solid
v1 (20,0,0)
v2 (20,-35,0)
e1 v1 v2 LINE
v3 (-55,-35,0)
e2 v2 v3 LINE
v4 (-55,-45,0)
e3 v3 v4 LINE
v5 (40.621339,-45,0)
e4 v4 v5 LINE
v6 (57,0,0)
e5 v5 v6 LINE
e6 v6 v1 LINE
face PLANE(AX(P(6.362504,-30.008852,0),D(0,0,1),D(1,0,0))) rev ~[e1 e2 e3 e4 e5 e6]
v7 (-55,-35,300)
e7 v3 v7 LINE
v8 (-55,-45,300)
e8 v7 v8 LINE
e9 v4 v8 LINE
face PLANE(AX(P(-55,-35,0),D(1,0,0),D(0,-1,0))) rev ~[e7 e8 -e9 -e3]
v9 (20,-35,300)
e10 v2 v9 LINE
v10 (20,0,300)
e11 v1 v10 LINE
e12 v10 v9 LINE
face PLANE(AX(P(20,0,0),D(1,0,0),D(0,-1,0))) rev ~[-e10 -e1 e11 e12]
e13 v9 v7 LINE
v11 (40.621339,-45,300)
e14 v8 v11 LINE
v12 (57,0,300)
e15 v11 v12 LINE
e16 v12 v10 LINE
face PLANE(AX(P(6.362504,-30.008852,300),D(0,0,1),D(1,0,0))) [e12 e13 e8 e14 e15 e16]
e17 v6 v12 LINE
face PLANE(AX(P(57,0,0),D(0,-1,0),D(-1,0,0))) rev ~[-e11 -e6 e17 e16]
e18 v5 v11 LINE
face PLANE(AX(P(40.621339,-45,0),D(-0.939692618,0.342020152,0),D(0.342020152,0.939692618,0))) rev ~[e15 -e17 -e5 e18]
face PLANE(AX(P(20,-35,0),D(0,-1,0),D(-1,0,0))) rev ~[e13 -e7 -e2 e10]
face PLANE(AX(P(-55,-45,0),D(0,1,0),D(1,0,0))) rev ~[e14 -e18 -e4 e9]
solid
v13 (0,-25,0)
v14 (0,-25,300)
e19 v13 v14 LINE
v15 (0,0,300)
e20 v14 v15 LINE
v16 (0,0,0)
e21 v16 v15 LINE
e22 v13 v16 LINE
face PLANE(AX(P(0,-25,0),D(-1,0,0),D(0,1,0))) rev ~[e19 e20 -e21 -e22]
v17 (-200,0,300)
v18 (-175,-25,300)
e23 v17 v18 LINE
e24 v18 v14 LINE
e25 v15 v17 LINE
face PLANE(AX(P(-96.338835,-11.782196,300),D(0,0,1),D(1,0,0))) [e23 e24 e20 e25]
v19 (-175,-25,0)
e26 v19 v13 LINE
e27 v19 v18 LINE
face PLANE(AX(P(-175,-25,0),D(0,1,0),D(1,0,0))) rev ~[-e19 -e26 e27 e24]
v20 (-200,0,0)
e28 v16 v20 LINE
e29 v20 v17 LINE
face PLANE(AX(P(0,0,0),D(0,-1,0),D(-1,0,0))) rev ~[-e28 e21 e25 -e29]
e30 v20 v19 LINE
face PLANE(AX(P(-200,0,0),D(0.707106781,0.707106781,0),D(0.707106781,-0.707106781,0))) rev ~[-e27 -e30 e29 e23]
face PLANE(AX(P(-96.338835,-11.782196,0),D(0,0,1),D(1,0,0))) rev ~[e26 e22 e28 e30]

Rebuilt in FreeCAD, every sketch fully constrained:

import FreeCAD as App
import Part
import Sketcher
Q = App.Units.Quantity

doc = App.newDocument("Part")
body = doc.addObject("PartDesign::Body", "Body")

sketch1 = body.newObject("Sketcher::SketchObject", "Sketch")
sketch1.AttachmentSupport = (doc.getObject("XY_Plane"), [""])
sketch1.MapMode = "FlatFace"
sketch1.addGeometry([
    Part.LineSegment(App.Vector(0, 0, 0), App.Vector(-200, 0, 0)),
    Part.LineSegment(App.Vector(-200, 0, 0), App.Vector(-175, -25, 0)),
    Part.LineSegment(App.Vector(-175, -25, 0), App.Vector(0, -25, 0)),
    Part.LineSegment(App.Vector(0, -25, 0), App.Vector(0, 0, 0)),
], False)
sketch1.addConstraint([
    Sketcher.Constraint("Coincident", 0, 2, 1, 1),
    Sketcher.Constraint("Coincident", 1, 2, 2, 1),
    Sketcher.Constraint("Coincident", 2, 2, 3, 1),
    Sketcher.Constraint("Coincident", 3, 2, 0, 1),
    Sketcher.Constraint("Horizontal", 0),
    Sketcher.Constraint("Horizontal", 2),
    Sketcher.Constraint("Vertical", 3),
    Sketcher.Constraint("Coincident", 3, 2, -1, 1),
    Sketcher.Constraint("DistanceX", 0, 2, 0, 1, 200.0),
    Sketcher.Constraint("DistanceX", 2, 1, 2, 2, 175.0),
    Sketcher.Constraint("DistanceY", 3, 1, 3, 2, 25.0),
])
pad1 = body.newObject("PartDesign::Pad", "Pad")
pad1.Profile = sketch1
pad1.Length = 300
body2 = doc.addObject("PartDesign::Body", "Body001")

sketch2 = body2.newObject("Sketcher::SketchObject", "Sketch001")
sketch2.AttachmentSupport = (doc.getObject("XY_Plane001"), [""])
sketch2.MapMode = "FlatFace"
sketch2.addGeometry([
    Part.LineSegment(App.Vector(57, 0, 0), App.Vector(20, 0, 0)),
    Part.LineSegment(App.Vector(20, 0, 0), App.Vector(20, -35, 0)),
    Part.LineSegment(App.Vector(20, -35, 0), App.Vector(-55, -35, 0)),
    Part.LineSegment(App.Vector(-55, -35, 0), App.Vector(-55, -45, 0)),
    Part.LineSegment(App.Vector(-55, -45, 0), App.Vector(41, -45, 0)),
    Part.LineSegment(App.Vector(41, -45, 0), App.Vector(57, 0, 0)),
], False)
sketch2.addConstraint([
    Sketcher.Constraint("Coincident", 0, 2, 1, 1),
    Sketcher.Constraint("Coincident", 1, 2, 2, 1),
    Sketcher.Constraint("Coincident", 2, 2, 3, 1),
    Sketcher.Constraint("Coincident", 3, 2, 4, 1),
    Sketcher.Constraint("Coincident", 4, 2, 5, 1),
    Sketcher.Constraint("Coincident", 5, 2, 0, 1),
    Sketcher.Constraint("Horizontal", 0),
    Sketcher.Constraint("Vertical", 1),
    Sketcher.Constraint("Horizontal", 2),
    Sketcher.Constraint("Vertical", 3),
    Sketcher.Constraint("Horizontal", 4),
    Sketcher.Constraint("PointOnObject", 0, 2, -1),
    Sketcher.Constraint("DistanceX", 0, 2, 0, 1, 37.0),
    Sketcher.Constraint("DistanceX", 2, 2, 2, 1, 75.0),
    Sketcher.Constraint("DistanceY", 1, 2, 1, 1, 35.0),
    Sketcher.Constraint("DistanceY", 3, 2, 3, 1, 10.0),
    Sketcher.Constraint("Angle", 5, Q("69.999999 deg")),
    Sketcher.Constraint("DistanceX", -1, 1, 0, 2, 20.0),
])
pad2 = body2.newObject("PartDesign::Pad", "Pad001")
pad2.Profile = sketch2
pad2.Length = 300

doc.recompute()
